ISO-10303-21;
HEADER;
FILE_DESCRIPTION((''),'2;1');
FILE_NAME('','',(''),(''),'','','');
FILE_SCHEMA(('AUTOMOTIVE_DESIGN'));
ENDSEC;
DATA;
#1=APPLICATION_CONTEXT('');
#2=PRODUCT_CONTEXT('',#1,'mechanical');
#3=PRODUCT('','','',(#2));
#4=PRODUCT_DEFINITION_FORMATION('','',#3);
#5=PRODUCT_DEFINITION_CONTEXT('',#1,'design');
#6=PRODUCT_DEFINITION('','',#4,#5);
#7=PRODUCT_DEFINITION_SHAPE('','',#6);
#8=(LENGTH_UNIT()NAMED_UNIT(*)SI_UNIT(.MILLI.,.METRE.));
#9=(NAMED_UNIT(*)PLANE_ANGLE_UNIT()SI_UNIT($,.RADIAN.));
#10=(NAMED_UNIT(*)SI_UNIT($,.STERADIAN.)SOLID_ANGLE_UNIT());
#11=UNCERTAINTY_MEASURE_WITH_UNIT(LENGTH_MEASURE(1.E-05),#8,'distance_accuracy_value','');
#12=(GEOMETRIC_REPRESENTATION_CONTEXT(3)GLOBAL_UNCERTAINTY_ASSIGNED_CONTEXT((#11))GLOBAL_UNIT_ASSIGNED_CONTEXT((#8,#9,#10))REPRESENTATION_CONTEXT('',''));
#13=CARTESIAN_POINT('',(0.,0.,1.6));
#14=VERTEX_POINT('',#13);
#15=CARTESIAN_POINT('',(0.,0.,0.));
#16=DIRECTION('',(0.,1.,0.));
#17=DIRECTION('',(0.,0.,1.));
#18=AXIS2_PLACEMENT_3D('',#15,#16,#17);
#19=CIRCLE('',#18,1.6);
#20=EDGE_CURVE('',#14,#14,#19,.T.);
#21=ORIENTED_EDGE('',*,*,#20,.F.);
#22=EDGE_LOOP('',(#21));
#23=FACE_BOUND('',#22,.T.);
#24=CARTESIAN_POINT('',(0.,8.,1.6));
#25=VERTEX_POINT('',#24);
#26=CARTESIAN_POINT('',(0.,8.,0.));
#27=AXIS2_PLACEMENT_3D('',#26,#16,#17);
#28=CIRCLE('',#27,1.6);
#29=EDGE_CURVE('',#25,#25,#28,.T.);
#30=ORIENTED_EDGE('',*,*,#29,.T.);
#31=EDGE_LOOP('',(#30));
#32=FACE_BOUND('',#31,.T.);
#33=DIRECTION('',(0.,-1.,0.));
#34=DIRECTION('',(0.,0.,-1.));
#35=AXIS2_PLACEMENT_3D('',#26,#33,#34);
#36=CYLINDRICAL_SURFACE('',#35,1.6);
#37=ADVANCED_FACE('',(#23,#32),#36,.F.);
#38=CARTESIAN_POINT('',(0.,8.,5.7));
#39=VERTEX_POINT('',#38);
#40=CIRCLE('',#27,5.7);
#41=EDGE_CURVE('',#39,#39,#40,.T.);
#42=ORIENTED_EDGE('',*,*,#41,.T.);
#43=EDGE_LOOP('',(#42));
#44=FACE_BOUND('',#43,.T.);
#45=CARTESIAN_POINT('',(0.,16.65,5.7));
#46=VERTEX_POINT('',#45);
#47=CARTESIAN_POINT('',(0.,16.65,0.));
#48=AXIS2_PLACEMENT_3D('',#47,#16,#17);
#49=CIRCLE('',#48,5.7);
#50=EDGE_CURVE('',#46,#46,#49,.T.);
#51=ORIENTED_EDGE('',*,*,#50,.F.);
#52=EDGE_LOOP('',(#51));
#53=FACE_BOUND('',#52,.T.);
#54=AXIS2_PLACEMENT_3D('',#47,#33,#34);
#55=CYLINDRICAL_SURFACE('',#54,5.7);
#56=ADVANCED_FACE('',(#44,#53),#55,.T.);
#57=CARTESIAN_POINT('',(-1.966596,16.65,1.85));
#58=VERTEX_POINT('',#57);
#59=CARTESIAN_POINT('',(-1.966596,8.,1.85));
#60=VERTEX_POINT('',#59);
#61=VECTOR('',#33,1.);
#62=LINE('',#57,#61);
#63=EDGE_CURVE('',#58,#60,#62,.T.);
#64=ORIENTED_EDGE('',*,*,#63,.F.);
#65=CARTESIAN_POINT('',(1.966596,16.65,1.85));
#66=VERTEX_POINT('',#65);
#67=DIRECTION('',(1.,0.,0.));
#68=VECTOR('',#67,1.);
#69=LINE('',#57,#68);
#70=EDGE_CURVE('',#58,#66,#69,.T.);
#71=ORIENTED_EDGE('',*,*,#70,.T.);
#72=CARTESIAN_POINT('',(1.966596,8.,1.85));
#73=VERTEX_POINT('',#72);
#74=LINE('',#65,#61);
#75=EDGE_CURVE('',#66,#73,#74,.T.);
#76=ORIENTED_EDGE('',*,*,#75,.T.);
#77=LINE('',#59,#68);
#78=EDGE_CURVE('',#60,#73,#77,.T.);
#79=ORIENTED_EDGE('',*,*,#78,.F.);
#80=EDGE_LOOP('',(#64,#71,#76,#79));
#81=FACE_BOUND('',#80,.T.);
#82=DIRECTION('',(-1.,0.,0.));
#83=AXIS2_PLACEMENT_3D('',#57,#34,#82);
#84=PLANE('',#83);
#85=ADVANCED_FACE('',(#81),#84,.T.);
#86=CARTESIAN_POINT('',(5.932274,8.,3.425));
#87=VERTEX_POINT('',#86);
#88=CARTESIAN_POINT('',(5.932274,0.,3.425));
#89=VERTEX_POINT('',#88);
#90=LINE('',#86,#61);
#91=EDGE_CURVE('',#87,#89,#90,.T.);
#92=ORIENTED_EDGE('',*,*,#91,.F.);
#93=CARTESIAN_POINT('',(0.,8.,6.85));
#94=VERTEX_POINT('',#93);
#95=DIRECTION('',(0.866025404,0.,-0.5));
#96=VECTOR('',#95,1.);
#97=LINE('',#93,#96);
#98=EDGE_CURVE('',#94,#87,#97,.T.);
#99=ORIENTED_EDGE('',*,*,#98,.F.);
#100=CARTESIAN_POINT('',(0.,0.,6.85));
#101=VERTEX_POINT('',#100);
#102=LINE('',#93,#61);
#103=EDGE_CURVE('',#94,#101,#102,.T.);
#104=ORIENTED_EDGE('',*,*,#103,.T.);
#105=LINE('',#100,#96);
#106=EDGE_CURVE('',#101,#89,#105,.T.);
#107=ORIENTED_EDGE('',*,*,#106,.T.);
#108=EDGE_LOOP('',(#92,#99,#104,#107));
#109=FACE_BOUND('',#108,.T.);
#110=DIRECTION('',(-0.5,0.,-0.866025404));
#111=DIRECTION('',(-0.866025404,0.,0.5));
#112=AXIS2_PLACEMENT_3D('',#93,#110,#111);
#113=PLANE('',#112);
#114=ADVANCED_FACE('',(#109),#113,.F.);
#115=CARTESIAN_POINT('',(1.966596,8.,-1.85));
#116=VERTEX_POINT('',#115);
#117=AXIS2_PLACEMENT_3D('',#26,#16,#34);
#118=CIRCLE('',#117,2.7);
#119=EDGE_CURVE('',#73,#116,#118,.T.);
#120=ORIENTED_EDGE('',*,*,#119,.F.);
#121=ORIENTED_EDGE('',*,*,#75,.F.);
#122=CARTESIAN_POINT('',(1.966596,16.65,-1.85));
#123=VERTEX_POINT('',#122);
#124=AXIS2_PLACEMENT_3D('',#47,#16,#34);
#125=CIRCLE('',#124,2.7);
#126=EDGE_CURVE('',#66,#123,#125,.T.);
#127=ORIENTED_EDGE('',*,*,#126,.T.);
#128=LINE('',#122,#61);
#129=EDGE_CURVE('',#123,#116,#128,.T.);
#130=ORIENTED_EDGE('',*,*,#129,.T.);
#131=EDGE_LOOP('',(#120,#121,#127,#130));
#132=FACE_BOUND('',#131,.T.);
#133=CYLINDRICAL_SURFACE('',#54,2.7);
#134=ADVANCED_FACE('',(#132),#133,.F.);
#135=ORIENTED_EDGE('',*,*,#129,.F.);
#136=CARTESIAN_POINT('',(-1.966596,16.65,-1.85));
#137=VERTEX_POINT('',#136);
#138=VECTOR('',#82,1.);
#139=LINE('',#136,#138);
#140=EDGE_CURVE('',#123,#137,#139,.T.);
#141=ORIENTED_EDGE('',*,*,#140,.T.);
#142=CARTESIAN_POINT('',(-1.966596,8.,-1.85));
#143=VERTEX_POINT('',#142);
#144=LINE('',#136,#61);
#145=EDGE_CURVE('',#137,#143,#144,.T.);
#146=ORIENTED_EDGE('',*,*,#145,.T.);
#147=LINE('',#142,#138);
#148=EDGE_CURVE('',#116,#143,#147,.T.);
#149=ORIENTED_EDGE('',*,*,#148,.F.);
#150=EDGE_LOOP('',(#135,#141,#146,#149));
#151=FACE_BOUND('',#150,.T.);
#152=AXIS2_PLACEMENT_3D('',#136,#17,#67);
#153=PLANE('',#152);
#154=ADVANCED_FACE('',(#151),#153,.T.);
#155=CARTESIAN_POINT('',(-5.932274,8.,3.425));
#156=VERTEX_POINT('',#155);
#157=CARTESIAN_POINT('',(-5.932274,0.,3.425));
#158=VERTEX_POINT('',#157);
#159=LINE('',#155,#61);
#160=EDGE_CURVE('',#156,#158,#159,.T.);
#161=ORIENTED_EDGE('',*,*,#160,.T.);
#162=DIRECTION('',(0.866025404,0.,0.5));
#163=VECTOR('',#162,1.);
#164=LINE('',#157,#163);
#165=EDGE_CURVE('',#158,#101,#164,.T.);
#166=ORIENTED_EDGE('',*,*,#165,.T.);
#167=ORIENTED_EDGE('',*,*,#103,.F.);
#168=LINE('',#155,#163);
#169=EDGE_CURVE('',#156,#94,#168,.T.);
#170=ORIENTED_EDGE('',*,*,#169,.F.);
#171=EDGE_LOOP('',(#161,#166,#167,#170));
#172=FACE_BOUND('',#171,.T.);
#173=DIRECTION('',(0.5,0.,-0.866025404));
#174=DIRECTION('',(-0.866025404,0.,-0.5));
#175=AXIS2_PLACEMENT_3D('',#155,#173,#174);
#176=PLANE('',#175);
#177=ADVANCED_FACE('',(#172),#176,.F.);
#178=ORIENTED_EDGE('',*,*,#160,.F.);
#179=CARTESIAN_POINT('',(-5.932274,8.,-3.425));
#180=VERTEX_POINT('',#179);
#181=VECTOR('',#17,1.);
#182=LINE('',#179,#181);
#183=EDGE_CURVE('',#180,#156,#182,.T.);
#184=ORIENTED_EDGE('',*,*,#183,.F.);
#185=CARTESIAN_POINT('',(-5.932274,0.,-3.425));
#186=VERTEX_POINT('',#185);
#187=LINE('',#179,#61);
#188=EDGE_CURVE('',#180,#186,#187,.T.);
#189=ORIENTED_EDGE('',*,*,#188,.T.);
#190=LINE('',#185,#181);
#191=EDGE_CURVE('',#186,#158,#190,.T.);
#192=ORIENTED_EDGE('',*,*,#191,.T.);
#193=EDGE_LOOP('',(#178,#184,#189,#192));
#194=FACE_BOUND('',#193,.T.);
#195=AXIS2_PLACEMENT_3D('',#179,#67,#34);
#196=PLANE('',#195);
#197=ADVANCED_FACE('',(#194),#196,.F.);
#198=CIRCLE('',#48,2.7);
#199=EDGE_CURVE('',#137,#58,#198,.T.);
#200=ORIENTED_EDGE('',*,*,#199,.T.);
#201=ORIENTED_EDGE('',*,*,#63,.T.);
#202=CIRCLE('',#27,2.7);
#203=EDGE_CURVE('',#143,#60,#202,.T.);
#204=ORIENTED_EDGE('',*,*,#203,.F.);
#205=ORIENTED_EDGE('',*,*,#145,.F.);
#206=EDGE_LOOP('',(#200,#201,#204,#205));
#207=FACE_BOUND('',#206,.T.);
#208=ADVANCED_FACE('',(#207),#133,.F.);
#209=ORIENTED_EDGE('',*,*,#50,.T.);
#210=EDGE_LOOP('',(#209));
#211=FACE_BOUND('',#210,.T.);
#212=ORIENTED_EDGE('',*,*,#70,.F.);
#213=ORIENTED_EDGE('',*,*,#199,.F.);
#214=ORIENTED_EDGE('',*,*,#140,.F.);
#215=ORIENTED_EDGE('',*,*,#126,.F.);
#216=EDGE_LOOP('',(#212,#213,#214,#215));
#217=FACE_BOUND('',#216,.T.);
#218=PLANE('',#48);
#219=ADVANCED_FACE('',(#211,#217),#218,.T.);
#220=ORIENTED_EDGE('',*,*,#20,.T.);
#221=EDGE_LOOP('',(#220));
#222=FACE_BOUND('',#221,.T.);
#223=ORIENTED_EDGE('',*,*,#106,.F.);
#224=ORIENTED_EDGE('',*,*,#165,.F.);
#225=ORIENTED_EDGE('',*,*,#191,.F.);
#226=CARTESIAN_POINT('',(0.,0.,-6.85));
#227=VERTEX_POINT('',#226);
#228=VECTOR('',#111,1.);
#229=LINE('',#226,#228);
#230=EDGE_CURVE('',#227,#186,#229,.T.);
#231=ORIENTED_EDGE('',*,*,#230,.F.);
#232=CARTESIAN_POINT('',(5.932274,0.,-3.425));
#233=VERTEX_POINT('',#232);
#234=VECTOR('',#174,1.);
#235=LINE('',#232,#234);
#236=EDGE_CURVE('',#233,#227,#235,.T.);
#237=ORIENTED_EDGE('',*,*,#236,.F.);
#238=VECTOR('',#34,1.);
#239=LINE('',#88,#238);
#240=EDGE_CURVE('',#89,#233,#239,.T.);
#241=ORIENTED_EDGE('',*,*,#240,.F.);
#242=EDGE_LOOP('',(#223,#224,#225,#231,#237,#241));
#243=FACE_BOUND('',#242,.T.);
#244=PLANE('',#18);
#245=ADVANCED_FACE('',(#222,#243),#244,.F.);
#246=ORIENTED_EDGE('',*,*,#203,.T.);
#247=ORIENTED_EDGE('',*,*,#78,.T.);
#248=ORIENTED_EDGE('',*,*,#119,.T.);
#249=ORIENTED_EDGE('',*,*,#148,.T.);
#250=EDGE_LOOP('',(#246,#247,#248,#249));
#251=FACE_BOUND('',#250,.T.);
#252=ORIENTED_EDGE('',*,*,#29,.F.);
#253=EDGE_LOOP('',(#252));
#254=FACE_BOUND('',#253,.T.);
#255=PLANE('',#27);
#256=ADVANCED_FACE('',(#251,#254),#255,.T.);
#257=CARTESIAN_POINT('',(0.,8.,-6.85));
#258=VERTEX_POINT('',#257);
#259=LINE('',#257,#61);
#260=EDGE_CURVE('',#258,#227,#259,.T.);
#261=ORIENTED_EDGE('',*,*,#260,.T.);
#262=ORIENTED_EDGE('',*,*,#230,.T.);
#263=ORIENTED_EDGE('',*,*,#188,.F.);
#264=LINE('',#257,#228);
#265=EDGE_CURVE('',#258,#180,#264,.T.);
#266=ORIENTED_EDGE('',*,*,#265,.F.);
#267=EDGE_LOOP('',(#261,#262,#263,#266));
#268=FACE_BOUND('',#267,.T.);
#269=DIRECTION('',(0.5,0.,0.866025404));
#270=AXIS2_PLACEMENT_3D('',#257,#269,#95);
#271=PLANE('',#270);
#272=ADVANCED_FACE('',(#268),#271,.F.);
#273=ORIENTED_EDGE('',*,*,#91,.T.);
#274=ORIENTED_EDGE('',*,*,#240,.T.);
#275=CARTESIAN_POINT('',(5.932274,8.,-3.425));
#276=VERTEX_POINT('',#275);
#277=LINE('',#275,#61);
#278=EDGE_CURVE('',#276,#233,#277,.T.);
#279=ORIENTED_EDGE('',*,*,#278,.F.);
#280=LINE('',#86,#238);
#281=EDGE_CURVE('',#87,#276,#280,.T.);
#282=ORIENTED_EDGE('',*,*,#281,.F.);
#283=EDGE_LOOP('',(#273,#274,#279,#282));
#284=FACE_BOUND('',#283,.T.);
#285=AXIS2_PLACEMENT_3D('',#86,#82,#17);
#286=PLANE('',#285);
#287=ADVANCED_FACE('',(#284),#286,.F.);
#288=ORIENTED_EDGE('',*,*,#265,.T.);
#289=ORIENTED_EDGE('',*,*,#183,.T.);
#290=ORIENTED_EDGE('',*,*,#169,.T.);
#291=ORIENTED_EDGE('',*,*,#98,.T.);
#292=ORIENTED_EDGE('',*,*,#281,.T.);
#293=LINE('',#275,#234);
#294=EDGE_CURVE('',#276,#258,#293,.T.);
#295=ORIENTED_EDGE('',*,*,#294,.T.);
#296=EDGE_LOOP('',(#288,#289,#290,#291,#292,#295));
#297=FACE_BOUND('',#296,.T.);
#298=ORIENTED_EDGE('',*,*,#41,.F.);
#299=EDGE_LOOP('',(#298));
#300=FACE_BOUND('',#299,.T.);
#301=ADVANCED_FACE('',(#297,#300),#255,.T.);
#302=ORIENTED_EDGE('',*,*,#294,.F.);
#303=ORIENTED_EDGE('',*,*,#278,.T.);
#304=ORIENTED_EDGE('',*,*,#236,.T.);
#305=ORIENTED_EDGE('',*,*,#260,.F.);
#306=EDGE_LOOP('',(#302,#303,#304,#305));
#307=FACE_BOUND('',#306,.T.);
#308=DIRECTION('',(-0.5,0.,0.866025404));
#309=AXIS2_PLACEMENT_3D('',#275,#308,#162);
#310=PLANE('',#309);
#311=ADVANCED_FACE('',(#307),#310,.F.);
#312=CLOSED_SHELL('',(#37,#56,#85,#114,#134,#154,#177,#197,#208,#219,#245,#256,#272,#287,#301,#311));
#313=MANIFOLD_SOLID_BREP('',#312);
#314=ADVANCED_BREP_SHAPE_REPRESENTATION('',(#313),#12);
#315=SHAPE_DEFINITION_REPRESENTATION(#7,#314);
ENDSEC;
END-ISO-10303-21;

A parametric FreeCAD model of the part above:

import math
import FreeCAD as App
import Part
import Sketcher

V = App.Vector
Q = App.Units.Quantity

doc = App.newDocument("Part")
body = doc.addObject("PartDesign::Body", "Body")

# Sketch on XZ plane
sketch1 = body.newObject("Sketcher::SketchObject", "Sketch")
sketch1.AttachmentSupport = (doc.getObject("XZ_Plane"), [""])
sketch1.MapMode = "FlatFace"
sketch1.addGeometry([
    Part.LineSegment(V(0, -6.85, 0), V(-5.932274, -3.425, 0)),  # 0
    Part.LineSegment(V(-5.932274, -3.425, 0), V(-5.932274, 3.425, 0)),  # 1
    Part.LineSegment(V(-5.932274, 3.425, 0), V(0, 6.85, 0)),  # 2
    Part.LineSegment(V(0, 6.85, 0), V(5.932274, 3.425, 0)),  # 3
    Part.LineSegment(V(5.932274, 3.425, 0), V(5.932274, -3.425, 0)),  # 4
    Part.LineSegment(V(5.932274, -3.425, 0), V(0, -6.85, 0)),  # 5
    Part.Circle(V(0, 0, 0), V(0, 0, 1), 1.6),  # 6
], False)
sketch1.addConstraint([
    Sketcher.Constraint("Coincident", 0, 2, 1, 1),
    Sketcher.Constraint("Coincident", 1, 2, 2, 1),
    Sketcher.Constraint("Coincident", 2, 2, 3, 1),
    Sketcher.Constraint("Coincident", 3, 2, 4, 1),
    Sketcher.Constraint("Coincident", 4, 2, 5, 1),
    Sketcher.Constraint("Coincident", 5, 2, 0, 1),
    Sketcher.Constraint("Vertical", 1),
    Sketcher.Constraint("Vertical", 4),
    Sketcher.Constraint("Coincident", 6, 3, -1, 1),
    Sketcher.Constraint("Symmetric", 0, 2, 3, 2, -1, 1),
    Sketcher.Constraint("Symmetric", 2, 2, 5, 2, -1, 1),
    Sketcher.Constraint("PointOnObject", 2, 2, -2),
    Sketcher.Constraint("Parallel", 2, 5),
    Sketcher.Constraint("Horizontal", 1, 2, 3, 2),
    Sketcher.Constraint("Diameter", 6, 3.2),
    Sketcher.Constraint("Angle", 0, Q("150 deg")),
    Sketcher.Constraint("DistanceY", 1, 1, 1, 2, 6.85),
    Sketcher.Constraint("Distance", 0, 6.85),
])
pad1 = body.newObject("PartDesign::Pad", "Pad")
pad1.Profile = sketch1
pad1.Length = 8
pad1.Reversed = True

# Sketch on XZ plane
sketch2 = body.newObject("Sketcher::SketchObject", "Sketch001")
sketch2.AttachmentSupport = (doc.getObject("XZ_Plane"), [""])
sketch2.MapMode = "FlatFace"
sketch2.AttachmentOffset = App.Placement(V(0, 0, -8), App.Rotation())
sketch2.addGeometry([
    Part.Circle(V(0, 0, 0), V(0, 0, 1), 5.7),  # 0
    Part.ArcOfCircle(Part.Circle(V(0, 0, 0), V(0, 0, 1), 2.7), math.radians(136.749827), math.radians(223.250173)),  # 1
    Part.LineSegment(V(-1.966596, -1.85, 0), V(1.966596, -1.85, 0)),  # 2
    Part.ArcOfCircle(Part.Circle(V(0, 0, 0), V(0, 0, 1), 2.7), math.radians(-43.250173), math.radians(43.250173)),  # 3
    Part.LineSegment(V(1.966596, 1.85, 0), V(-1.966596, 1.85, 0)),  # 4
], False)
sketch2.addConstraint([
    Sketcher.Constraint("Coincident", 1, 2, 2, 1),
    Sketcher.Constraint("Coincident", 2, 2, 3, 1),
    Sketcher.Constraint("Coincident", 3, 2, 4, 1),
    Sketcher.Constraint("Coincident", 4, 2, 1, 1),
    Sketcher.Constraint("Horizontal", 2),
    Sketcher.Constraint("Horizontal", 4),
    Sketcher.Constraint("Coincident", 0, 3, -1, 1),
    Sketcher.Constraint("Coincident", 1, 3, -1, 1),
    Sketcher.Constraint("Coincident", 3, 3, -1, 1),
    Sketcher.Constraint("Equal", 1, 3),
    Sketcher.Constraint("Vertical", 2, 2, 3, 2),
    Sketcher.Constraint("Diameter", 0, 11.4),
    Sketcher.Constraint("Radius", 1, 2.7),
    Sketcher.Constraint("DistanceY", 2, 2, 3, 2, 3.7),
])
pad2 = body.newObject("PartDesign::Pad", "Pad001")
pad2.Profile = sketch2
pad2.Length = 8.65
pad2.Reversed = True

doc.recompute()
